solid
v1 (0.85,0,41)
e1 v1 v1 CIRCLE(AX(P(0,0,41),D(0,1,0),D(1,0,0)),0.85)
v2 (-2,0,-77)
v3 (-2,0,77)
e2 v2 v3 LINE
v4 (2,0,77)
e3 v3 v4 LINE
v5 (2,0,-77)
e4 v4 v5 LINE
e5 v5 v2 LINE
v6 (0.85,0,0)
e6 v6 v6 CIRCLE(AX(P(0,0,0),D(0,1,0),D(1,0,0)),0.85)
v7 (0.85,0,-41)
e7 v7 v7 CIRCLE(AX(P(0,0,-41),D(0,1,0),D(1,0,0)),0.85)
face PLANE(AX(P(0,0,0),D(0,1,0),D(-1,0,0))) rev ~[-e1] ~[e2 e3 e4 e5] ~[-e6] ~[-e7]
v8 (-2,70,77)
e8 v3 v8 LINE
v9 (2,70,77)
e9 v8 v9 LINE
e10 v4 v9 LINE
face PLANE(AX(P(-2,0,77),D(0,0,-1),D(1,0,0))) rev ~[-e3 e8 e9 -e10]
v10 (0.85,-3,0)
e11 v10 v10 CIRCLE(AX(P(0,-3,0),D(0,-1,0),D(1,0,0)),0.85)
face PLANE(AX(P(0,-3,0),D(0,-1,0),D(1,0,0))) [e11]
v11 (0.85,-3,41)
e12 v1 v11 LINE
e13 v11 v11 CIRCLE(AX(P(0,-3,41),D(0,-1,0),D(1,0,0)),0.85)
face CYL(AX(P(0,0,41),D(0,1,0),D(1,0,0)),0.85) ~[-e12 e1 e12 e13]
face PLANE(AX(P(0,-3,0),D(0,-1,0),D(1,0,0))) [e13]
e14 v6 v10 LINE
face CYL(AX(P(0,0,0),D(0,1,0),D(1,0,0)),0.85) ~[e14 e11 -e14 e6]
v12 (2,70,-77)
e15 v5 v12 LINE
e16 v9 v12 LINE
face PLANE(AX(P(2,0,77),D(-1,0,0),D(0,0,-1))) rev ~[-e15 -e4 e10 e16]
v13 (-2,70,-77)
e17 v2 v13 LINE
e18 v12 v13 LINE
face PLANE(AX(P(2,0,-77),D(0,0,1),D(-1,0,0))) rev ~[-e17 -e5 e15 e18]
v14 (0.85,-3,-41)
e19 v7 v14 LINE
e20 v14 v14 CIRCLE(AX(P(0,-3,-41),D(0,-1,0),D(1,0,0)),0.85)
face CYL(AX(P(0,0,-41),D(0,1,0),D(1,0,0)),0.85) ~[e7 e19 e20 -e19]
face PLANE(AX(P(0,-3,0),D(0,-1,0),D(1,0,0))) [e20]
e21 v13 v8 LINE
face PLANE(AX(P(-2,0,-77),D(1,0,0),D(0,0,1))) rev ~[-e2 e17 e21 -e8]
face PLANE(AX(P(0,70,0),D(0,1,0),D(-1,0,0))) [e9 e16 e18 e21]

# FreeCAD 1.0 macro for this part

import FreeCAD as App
import Part
import Sketcher
Q = App.Units.Quantity

doc = App.newDocument("Part")
params = doc.addObject("Spreadsheet::Sheet", "Params")
for row, (alias, value) in enumerate([
    ("sketch1_diameter", "1.7 mm"),
    ("sketch1_width", "4 mm"),
    ("sketch1_height", "154 mm"),
    ("pad1_length", "70 mm"),
    ("sketch2_diameter", "1.7 mm"),
    ("pad2_length", "3 mm"),
    ("pad2_length2", "70 mm"),
    ("sketch3_diameter", "1.7 mm"),
    ("pad3_length", "3 mm"),
    ("pad3_length2", "70 mm"),
    ("sketch4_diameter", "1.7 mm"),
    ("pad4_length", "3 mm"),
    ("pad4_length2", "70 mm"),
], start=1):
    params.set(f"A{row}", alias)
    params.set(f"B{row}", "=" + value)
    params.setAlias(f"B{row}", alias)

body = doc.addObject("PartDesign::Body", "Body")

sketch1 = body.newObject("Sketcher::SketchObject", "Sketch")
sketch1.AttachmentSupport = (doc.getObject("XZ_Plane"), [""])
sketch1.MapMode = "FlatFace"
sketch1.addGeometry(Part.LineSegment(App.Vector(-2, -77, 0), App.Vector(-2, 77, 0)), False)
sketch1.addGeometry(Part.LineSegment(App.Vector(-2, 77, 0), App.Vector(2, 77, 0)), False)
sketch1.addGeometry(Part.LineSegment(App.Vector(2, 77, 0), App.Vector(2, -77, 0)), False)
sketch1.addGeometry(Part.LineSegment(App.Vector(2, -77, 0), App.Vector(-2, -77, 0)), False)
sketch1.addGeometry(Part.Circle(App.Vector(0, -41, 0), App.Vector(0, 0, 1), 0.8), False)
sketch1.addGeometry(Part.Circle(App.Vector(0, 0, 0), App.Vector(0, 0, 1), 0.8), False)
sketch1.addGeometry(Part.Circle(App.Vector(0, 41, 0), App.Vector(0, 0, 1), 0.8), False)
sketch1.addConstraint(Sketcher.Constraint("Coincident", 0, 2, 1, 1))
sketch1.addConstraint(Sketcher.Constraint("Coincident", 1, 2, 2, 1))
sketch1.addConstraint(Sketcher.Constraint("Coincident", 2, 2, 3, 1))
sketch1.addConstraint(Sketcher.Constraint("Coincident", 3, 2, 0, 1))
sketch1.addConstraint(Sketcher.Constraint("Vertical", 0))
sketch1.addConstraint(Sketcher.Constraint("Horizontal", 1))
sketch1.addConstraint(Sketcher.Constraint("Vertical", 2))
sketch1.addConstraint(Sketcher.Constraint("Horizontal", 3))
sketch1.addConstraint(Sketcher.Constraint("Coincident", 5, 3, -1, 1))
sketch1.addConstraint(Sketcher.Constraint("Equal", 4, 5))
sketch1.addConstraint(Sketcher.Constraint("Equal", 5, 6))
sketch1.addConstraint(Sketcher.Constraint("Symmetric", 4, 3, 6, 3, -1, 1))
sketch1.addConstraint(Sketcher.Constraint("Symmetric", 0, 2, 2, 2, -1, 1))
sketch1.addConstraint(Sketcher.Constraint("PointOnObject", 4, 3, -2))
sketch1.addConstraint(Sketcher.Constraint("Diameter", 4, Q("1.7 mm")))
sketch1.addConstraint(Sketcher.Constraint("DistanceX", 1, 1, 1, 2, Q("4 mm")))
sketch1.addConstraint(Sketcher.Constraint("DistanceY", 0, 1, 0, 2, Q("154 mm")))
sketch1.addConstraint(Sketcher.Constraint("DistanceY", 6, 3, 0, 2, Q("36 mm")))
sketch1.setExpression("Constraints[14]", "Params.sketch1_diameter")
sketch1.setExpression("Constraints[15]", "Params.sketch1_width")
sketch1.setExpression("Constraints[16]", "Params.sketch1_height")
pad1 = body.newObject("PartDesign::Pad", "Pad")
pad1.Profile = sketch1
pad1.setExpression("Length", "Params.pad1_length")
pad1.Reversed = True

sketch2 = body.newObject("Sketcher::SketchObject", "Sketch001")
sketch2.AttachmentSupport = (doc.getObject("XZ_Plane"), [""])
sketch2.MapMode = "FlatFace"
sketch2.addGeometry(Part.Circle(App.Vector(0, 0, 0), App.Vector(0, 0, 1), 0.8), False)
sketch2.addConstraint(Sketcher.Constraint("Coincident", 0, 3, -1, 1))
sketch2.addConstraint(Sketcher.Constraint("Diameter", 0, Q("1.7 mm")))
sketch2.setExpression("Constraints[1]", "Params.sketch2_diameter")
pad2 = body.newObject("PartDesign::Pad", "Pad001")
pad2.Profile = sketch2
pad2.Type = "TwoLengths"
pad2.setExpression("Length", "Params.pad2_length")
pad2.setExpression("Length2", "Params.pad2_length2")

sketch3 = body.newObject("Sketcher::SketchObject", "Sketch002")
sketch3.AttachmentSupport = (doc.getObject("XZ_Plane"), [""])
sketch3.MapMode = "FlatFace"
sketch3.addGeometry(Part.Circle(App.Vector(0, 41, 0), App.Vector(0, 0, 1), 0.8), False)
sketch3.addConstraint(Sketcher.Constraint("PointOnObject", 0, 3, -2))
sketch3.addConstraint(Sketcher.Constraint("Diameter", 0, Q("1.7 mm")))
sketch3.addConstraint(Sketcher.Constraint("DistanceY", -1, 1, 0, 3, Q("41 mm")))
sketch3.setExpression("Constraints[1]", "Params.sketch3_diameter")
pad3 = body.newObject("PartDesign::Pad", "Pad002")
pad3.Profile = sketch3
pad3.Type = "TwoLengths"
pad3.setExpression("Length", "Params.pad3_length")
pad3.setExpression("Length2", "Params.pad3_length2")

sketch4 = body.newObject("Sketcher::SketchObject", "Sketch003")
sketch4.AttachmentSupport = (doc.getObject("XZ_Plane"), [""])
sketch4.MapMode = "FlatFace"
sketch4.addGeometry(Part.Circle(App.Vector(0, -41, 0), App.Vector(0, 0, 1), 0.8), False)
sketch4.addConstraint(Sketcher.Constraint("PointOnObject", 0, 3, -2))
sketch4.addConstraint(Sketcher.Constraint("Diameter", 0, Q("1.7 mm")))
sketch4.addConstraint(Sketcher.Constraint("DistanceY", 0, 3, -1, 1, Q("41 mm")))
sketch4.setExpression("Constraints[1]", "Params.sketch4_diameter")
pad4 = body.newObject("PartDesign::Pad", "Pad003")
pad4.Profile = sketch4
pad4.Type = "TwoLengths"
pad4.setExpression("Length", "Params.pad4_length")
pad4.setExpression("Length2", "Params.pad4_length2")

doc.recompute()
